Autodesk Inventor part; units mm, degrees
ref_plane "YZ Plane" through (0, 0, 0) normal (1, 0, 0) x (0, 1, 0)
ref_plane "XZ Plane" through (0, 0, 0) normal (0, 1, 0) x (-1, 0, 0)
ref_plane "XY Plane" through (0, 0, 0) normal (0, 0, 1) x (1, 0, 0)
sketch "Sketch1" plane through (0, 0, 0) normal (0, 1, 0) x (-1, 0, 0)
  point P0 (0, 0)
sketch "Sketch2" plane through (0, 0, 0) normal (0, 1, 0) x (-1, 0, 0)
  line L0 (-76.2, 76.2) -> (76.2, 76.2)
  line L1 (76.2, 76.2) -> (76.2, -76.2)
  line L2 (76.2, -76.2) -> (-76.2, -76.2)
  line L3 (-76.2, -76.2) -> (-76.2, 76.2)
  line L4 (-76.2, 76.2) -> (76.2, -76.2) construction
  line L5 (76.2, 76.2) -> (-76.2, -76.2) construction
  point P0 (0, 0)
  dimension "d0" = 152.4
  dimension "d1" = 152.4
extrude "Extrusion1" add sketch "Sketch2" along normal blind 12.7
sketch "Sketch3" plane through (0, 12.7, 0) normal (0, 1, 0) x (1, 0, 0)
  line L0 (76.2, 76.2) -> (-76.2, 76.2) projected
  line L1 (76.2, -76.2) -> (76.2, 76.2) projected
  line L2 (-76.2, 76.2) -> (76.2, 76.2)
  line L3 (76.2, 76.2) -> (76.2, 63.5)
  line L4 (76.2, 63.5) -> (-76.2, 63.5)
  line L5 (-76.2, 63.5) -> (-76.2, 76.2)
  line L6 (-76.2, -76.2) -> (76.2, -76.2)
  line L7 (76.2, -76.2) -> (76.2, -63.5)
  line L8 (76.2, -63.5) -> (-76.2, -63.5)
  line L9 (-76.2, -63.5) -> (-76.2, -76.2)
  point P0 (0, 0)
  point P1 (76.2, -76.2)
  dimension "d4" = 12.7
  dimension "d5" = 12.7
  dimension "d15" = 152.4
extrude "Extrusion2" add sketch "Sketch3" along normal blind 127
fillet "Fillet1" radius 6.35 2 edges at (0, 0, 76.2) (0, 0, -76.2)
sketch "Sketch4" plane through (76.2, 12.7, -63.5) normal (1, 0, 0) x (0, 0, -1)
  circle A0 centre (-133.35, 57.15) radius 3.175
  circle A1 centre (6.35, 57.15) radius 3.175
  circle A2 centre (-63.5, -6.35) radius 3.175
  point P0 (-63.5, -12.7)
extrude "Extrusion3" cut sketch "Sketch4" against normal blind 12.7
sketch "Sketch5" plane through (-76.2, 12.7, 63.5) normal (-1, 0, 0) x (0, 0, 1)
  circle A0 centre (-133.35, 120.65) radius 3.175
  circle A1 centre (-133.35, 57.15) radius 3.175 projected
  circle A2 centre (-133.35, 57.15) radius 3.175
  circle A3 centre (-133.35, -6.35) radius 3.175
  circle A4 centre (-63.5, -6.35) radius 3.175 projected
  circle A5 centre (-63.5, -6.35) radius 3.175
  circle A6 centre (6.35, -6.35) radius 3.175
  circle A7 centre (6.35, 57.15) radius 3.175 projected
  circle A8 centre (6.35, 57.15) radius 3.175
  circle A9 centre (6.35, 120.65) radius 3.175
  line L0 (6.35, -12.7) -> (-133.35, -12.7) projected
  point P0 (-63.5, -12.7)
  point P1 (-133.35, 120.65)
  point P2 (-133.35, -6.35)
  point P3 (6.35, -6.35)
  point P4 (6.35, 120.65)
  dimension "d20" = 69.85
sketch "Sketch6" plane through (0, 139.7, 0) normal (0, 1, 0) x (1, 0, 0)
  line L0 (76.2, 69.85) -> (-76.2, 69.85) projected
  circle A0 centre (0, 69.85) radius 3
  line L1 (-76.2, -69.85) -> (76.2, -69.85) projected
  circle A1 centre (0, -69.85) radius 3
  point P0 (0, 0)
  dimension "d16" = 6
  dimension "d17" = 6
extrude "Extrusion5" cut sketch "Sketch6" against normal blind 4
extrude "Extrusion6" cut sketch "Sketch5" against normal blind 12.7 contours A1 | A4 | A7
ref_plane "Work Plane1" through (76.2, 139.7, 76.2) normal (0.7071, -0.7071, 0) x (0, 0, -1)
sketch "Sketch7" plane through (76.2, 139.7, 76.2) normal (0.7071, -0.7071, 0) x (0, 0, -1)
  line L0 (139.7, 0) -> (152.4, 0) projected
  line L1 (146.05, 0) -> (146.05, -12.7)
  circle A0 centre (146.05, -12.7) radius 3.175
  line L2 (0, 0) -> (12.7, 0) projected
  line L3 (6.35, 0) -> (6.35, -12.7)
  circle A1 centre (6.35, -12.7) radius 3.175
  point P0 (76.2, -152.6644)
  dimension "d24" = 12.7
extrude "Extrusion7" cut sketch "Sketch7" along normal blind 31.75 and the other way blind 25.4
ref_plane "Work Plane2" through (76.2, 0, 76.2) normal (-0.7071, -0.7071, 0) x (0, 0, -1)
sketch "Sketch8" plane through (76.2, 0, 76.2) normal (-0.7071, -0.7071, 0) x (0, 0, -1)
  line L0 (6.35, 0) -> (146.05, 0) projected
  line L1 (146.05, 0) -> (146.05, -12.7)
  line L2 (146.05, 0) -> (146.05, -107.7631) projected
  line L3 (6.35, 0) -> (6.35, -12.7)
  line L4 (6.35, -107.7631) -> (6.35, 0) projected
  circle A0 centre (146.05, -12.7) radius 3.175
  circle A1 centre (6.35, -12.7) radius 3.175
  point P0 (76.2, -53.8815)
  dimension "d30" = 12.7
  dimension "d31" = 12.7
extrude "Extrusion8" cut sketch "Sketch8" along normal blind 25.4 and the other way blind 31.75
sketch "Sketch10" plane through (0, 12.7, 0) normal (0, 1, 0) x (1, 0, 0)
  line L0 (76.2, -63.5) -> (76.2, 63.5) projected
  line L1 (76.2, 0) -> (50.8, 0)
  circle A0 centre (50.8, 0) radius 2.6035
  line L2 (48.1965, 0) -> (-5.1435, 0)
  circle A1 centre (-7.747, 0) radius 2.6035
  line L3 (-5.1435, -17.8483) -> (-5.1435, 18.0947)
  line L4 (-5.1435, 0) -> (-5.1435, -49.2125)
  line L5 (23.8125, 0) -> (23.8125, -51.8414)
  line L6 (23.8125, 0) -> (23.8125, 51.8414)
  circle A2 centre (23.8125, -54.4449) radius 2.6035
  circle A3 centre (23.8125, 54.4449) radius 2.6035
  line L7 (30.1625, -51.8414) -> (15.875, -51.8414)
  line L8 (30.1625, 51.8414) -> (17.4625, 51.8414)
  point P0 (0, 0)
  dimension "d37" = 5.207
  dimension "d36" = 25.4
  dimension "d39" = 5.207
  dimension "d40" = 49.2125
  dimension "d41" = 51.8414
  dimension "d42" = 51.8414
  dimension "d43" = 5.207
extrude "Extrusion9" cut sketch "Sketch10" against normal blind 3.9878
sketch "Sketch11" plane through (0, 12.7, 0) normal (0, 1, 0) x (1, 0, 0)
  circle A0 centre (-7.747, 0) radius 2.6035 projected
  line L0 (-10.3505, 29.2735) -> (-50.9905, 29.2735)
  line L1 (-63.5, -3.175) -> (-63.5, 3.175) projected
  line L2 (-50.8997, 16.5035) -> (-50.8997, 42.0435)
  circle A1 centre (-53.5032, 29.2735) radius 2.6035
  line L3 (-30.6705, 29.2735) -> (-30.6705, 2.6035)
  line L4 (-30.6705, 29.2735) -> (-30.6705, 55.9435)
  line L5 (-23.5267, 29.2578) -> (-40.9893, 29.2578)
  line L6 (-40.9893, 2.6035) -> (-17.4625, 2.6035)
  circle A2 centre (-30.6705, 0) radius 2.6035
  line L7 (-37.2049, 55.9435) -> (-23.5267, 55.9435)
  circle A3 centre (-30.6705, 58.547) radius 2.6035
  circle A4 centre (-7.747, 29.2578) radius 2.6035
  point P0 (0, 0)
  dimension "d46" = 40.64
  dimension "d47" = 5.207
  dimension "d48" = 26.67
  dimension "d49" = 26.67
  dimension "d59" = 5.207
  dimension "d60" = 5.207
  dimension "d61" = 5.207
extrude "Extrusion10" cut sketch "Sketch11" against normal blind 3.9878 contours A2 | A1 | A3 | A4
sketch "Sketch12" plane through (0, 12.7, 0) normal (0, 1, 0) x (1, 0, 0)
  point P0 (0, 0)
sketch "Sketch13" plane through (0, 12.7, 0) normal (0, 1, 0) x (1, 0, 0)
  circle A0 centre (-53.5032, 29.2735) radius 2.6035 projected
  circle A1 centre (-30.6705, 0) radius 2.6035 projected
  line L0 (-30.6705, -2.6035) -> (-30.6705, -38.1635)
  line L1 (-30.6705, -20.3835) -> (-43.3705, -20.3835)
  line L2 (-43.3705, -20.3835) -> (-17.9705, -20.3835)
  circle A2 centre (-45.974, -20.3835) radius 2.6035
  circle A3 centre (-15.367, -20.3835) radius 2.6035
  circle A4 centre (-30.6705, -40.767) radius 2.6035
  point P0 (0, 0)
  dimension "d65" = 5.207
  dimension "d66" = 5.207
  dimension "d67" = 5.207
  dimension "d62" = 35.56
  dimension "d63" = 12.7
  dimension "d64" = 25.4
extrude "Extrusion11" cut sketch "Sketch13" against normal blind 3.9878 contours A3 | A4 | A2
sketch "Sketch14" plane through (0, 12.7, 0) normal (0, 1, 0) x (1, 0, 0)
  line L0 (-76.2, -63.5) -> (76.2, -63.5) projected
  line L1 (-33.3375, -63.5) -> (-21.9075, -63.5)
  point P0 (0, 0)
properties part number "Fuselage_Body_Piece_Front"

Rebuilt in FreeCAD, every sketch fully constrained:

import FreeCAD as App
import Part
import Sketcher
from FreeCAD import Vector
Q = App.Units.Quantity


def edges_at(feature, points):
    """Names of the edges that pass closest to the given points."""
    edges = feature.Shape.Edges
    near = lambda p: min(range(len(edges)), key=lambda i: edges[i].distToShape(Part.Vertex(*p))[0])
    return sorted({f"Edge{near(p) + 1}" for p in points})


def add_polygon(sketch, points):
    """Adds a closed chain of lines whose ends are joined by coincident constraints."""
    first, n = sketch.GeometryCount, len(points)
    for a, b in zip(points, points[1:] + points[:1]):
        sketch.addGeometry(Part.LineSegment(App.Vector(*a, 0), App.Vector(*b, 0)), False)
    for i in range(n):
        sketch.addConstraint(Sketcher.Constraint("Coincident", first + i, 2, first + (i + 1) % n, 1))

doc = App.newDocument("Part")
params = doc.addObject("Spreadsheet::Sheet", "Params")
for row, (alias, value) in enumerate([
    ("sketch1_width", "6 in"),
    ("pad1_length", "0.5 in"),
    ("sketch2_width", "6 in"),
    ("sketch2_height", "0.5 in"),
    ("pad2_length", "5 in"),
    ("fillet_radius", "0.25 in"),
    ("sketch3_diameter", "0.25 in"),
    ("pocket1_length", "0.5 in"),
    ("pocket2_length", "4 mm"),
    ("sketch5_diameter", "0.25 in"),
    ("pocket3_length", "0.5 in"),
    ("sketch6_diameter", "0.25 in"),
    ("sketch7_diameter", "0.25 in"),
    ("sketch8_diameter", "0.205 in"),
    ("pocket6_length", "0.157 in"),
    ("sketch9_diameter", "0.205 in"),
    ("pocket7_length", "0.157 in"),
    ("sketch10_diameter", "0.205 in"),
    ("pocket8_length", "0.157 in"),
], start=1):
    params.set(f"A{row}", alias)
    params.set(f"B{row}", "=" + value)
    params.setAlias(f"B{row}", alias)

body = doc.addObject("PartDesign::Body", "Body")

# Sketch on XZ plane
sketch1 = body.newObject("Sketcher::SketchObject", "Sketch")
sketch1.AttachmentSupport = (doc.getObject("XZ_Plane"), [""])
sketch1.MapMode = "FlatFace"
add_polygon(sketch1, [(-76.2, 76.2), (76.2, 76.2), (76.2, -76.2), (-76.2, -76.2)])  # lines 0-3
sketch1.addConstraint([
    Sketcher.Constraint("Horizontal", 0),
    Sketcher.Constraint("Vertical", 1),
    Sketcher.Constraint("Horizontal", 2),
    Sketcher.Constraint("Vertical", 3),
    Sketcher.Constraint("Symmetric", 0, 2, 2, 2, -1, 1),
    Sketcher.Constraint("Equal", 2, 1),
    Sketcher.Constraint("DistanceX", 0, 1, 0, 2, Q("6 in")),
])
sketch1.setExpression("Constraints[10]", "Params.sketch1_width")
pad1 = body.newObject("PartDesign::Pad", "Pad")
pad1.Profile = sketch1
pad1.setExpression("Length", "Params.pad1_length")
pad1.Reversed = True

# Sketch on XZ plane
sketch2 = body.newObject("Sketcher::SketchObject", "Sketch001")
sketch2.AttachmentSupport = (doc.getObject("XZ_Plane"), [""])
sketch2.MapMode = "FlatFace"
sketch2.AttachmentOffset = App.Placement(Vector(0, 0, -0.5 * 25.4), App.Rotation())
add_polygon(sketch2, [(76.2, -63.5), (76.2, -76.2), (-76.2, -76.2), (-76.2, -63.5)])  # lines 0-3
add_polygon(sketch2, [(76.2, 76.2), (76.2, 63.5), (-76.2, 63.5), (-76.2, 76.2)])  # lines 4-7
sketch2.addConstraint([
    Sketcher.Constraint("Vertical", 0),
    Sketcher.Constraint("Horizontal", 1),
    Sketcher.Constraint("Vertical", 2),
    Sketcher.Constraint("Horizontal", 3),
    Sketcher.Constraint("Vertical", 4),
    Sketcher.Constraint("Horizontal", 5),
    Sketcher.Constraint("Vertical", 6),
    Sketcher.Constraint("Horizontal", 7),
    Sketcher.Constraint("Symmetric", 2, 2, 4, 2, -1, 1),
    Sketcher.Constraint("Symmetric", 0, 2, 6, 2, -1, 1),
    Sketcher.Constraint("Vertical", 3, 2, 4, 2),
    Sketcher.Constraint("DistanceX", 1, 2, 1, 1, Q("6 in")),
    Sketcher.Constraint("DistanceY", 0, 2, 0, 1, Q("0.5 in")),
    Sketcher.Constraint("DistanceY", 1, 2, 6, 2, Q("6 in")),
])
sketch2.setExpression("Constraints[19]", "Params.sketch2_width")
sketch2.setExpression("Constraints[20]", "Params.sketch2_height")
pad2 = body.newObject("PartDesign::Pad", "Pad001")
pad2.Profile = sketch2
pad2.setExpression("Length", "Params.pad2_length")
pad2.Reversed = True
doc.recompute()

fillet = body.newObject("PartDesign::Fillet", "Fillet")
fillet.Base = (pad2, edges_at(pad2, [(0, 0, 76.2), (0, 0, -76.2)]))
fillet.setExpression("Radius", "Params.fillet_radius")

# Sketch on YZ plane
sketch3 = body.newObject("Sketcher::SketchObject", "Sketch002")
sketch3.AttachmentSupport = (doc.getObject("YZ_Plane"), [""])
sketch3.MapMode = "FlatFace"
sketch3.AttachmentOffset = App.Placement(Vector(0, 0, 3 * 25.4), App.Rotation())
sketch3.addGeometry([
    Part.Circle(Vector(69.85, 69.85, 0), Vector(0, 0, 1), 3.175),
    Part.Circle(Vector(69.85, -69.85, 0), Vector(0, 0, 1), 3.175),
    Part.Circle(Vector(6.35, 0, 0), Vector(0, 0, 1), 3.175),
], False)
sketch3.addConstraint([
    Sketcher.Constraint("Equal", 0, 1),
    Sketcher.Constraint("Equal", 1, 2),
    Sketcher.Constraint("Symmetric", 0, 3, 1, 3, -1),
    Sketcher.Constraint("PointOnObject", 2, 3, -1),
    Sketcher.Constraint("Diameter", 0, Q("0.25 in")),
    Sketcher.Constraint("DistanceY", 1, 3, 0, 3, Q("5.5 in")),
    Sketcher.Constraint("DistanceX", 2, 3, 0, 3, Q("2.5 in")),
    Sketcher.Constraint("DistanceX", -1, 1, 0, 3, Q("2.75 in")),
])
sketch3.setExpression("Constraints[4]", "Params.sketch3_diameter")
pocket1 = body.newObject("PartDesign::Pocket", "Pocket")
pocket1.Profile = sketch3
pocket1.setExpression("Length", "Params.pocket1_length")

# Sketch on XZ plane
sketch4 = body.newObject("Sketcher::SketchObject", "Sketch003")
sketch4.AttachmentSupport = (doc.getObject("XZ_Plane"), [""])
sketch4.MapMode = "FlatFace"
sketch4.AttachmentOffset = App.Placement(Vector(0, 0, -5.5 * 25.4), App.Rotation())
sketch4.addGeometry([
    Part.Circle(Vector(0, -69.85, 0), Vector(0, 0, 1), 3),
    Part.Circle(Vector(0, 69.85, 0), Vector(0, 0, 1), 3),
], False)
sketch4.addConstraint([
    Sketcher.Constraint("Equal", 0, 1),
    Sketcher.Constraint("Symmetric", 0, 3, 1, 3, -1, 1),
    Sketcher.Constraint("PointOnObject", 0, 3, -2),
    Sketcher.Constraint("Diameter", 0, Q("6 mm")),
    Sketcher.Constraint("DistanceY", 0, 3, 1, 3, Q("5.5 in")),
])
pocket2 = body.newObject("PartDesign::Pocket", "Pocket001")
pocket2.Profile = sketch4
pocket2.setExpression("Length", "Params.pocket2_length")
pocket2.Reversed = True

# Sketch on YZ plane
sketch5 = body.newObject("Sketcher::SketchObject", "Sketch004")
sketch5.AttachmentSupport = (doc.getObject("YZ_Plane"), [""])
sketch5.MapMode = "FlatFace"
sketch5.AttachmentOffset = App.Placement(Vector(0, 0, -3 * 25.4), App.Rotation())
sketch5.addGeometry([
    Part.Circle(Vector(69.85, -69.85, 0), Vector(0, 0, 1), 3.175),
    Part.Circle(Vector(6.35, 0, 0), Vector(0, 0, 1), 3.175),
    Part.Circle(Vector(69.85, 69.85, 0), Vector(0, 0, 1), 3.175),
], False)
sketch5.addConstraint([
    Sketcher.Constraint("Equal", 0, 1),
    Sketcher.Constraint("Equal", 1, 2),
    Sketcher.Constraint("Symmetric", 0, 3, 2, 3, -1),
    Sketcher.Constraint("PointOnObject", 1, 3, -1),
    Sketcher.Constraint("Diameter", 0, Q("0.25 in")),
    Sketcher.Constraint("DistanceX", -1, 1, 0, 3, Q("2.75 in")),
    Sketcher.Constraint("DistanceY", 0, 3, -1, 1, Q("2.75 in")),
    Sketcher.Constraint("DistanceX", 1, 3, 0, 3, Q("2.5 in")),
])
sketch5.setExpression("Constraints[4]", "Params.sketch5_diameter")
pocket3 = body.newObject("PartDesign::Pocket", "Pocket002")
pocket3.Profile = sketch5
pocket3.setExpression("Length", "Params.pocket3_length")
pocket3.Reversed = True

# Sketch on an angled plane
sketch6 = body.newObject("Sketcher::SketchObject", "Sketch005")
sketch6.Placement = App.Placement(Vector(76.2, 139.7, 76.2), App.Rotation(Vector(0, 0, -1), Vector(0.707106781, 0.707106781, 0), Vector(0.707106781, -0.707106781, 0), "ZXY"))
sketch6.addGeometry([
    Part.Circle(Vector(146.05, -12.7, 0), Vector(0, 0, 1), 3.175),
    Part.Circle(Vector(6.35, -12.7, 0), Vector(0, 0, 1), 3.175),
], False)
sketch6.addConstraint([
    Sketcher.Constraint("Equal", 0, 1),
    Sketcher.Constraint("Horizontal", 0, 3, 1, 3),
    Sketcher.Constraint("DistanceY", 0, 3, -1, 1, Q("0.5 in")),
    Sketcher.Constraint("Diameter", 0, Q("0.25 in")),
    Sketcher.Constraint("DistanceX", 1, 3, 0, 3, Q("5.5 in")),
    Sketcher.Constraint("DistanceX", -1, 1, 0, 3, Q("5.75 in")),
])
sketch6.setExpression("Constraints[3]", "Params.sketch6_diameter")
pocket4 = body.newObject("PartDesign::Pocket", "Pocket003")
pocket4.Profile = sketch6
pocket4.Type = "ThroughAll"
pocket4.Midplane = True

# Sketch on an angled plane
sketch7 = body.newObject("Sketcher::SketchObject", "Sketch006")
sketch7.Placement = App.Placement(Vector(76.2, 0, 76.2), App.Rotation(Vector(0, 0, -1), Vector(0.707106781, -0.707106781, 0), Vector(-0.707106781, -0.707106781, 0), "ZXY"))
sketch7.addGeometry([
    Part.Circle(Vector(146.05, -12.7, 0), Vector(0, 0, 1), 3.175),
    Part.Circle(Vector(6.35, -12.7, 0), Vector(0, 0, 1), 3.175),
], False)
sketch7.addConstraint([
    Sketcher.Constraint("Equal", 0, 1),
    Sketcher.Constraint("Horizontal", 0, 3, 1, 3),
    Sketcher.Constraint("DistanceY", 0, 3, -1, 1, Q("0.5 in")),
    Sketcher.Constraint("Diameter", 0, Q("0.25 in")),
    Sketcher.Constraint("DistanceX", 1, 3, 0, 3, Q("5.5 in")),
    Sketcher.Constraint("DistanceX", -1, 1, 0, 3, Q("5.75 in")),
])
sketch7.setExpression("Constraints[3]", "Params.sketch7_diameter")
pocket5 = body.newObject("PartDesign::Pocket", "Pocket004")
pocket5.Profile = sketch7
pocket5.Type = "ThroughAll"
pocket5.Midplane = True

# Sketch on XZ plane
sketch8 = body.newObject("Sketcher::SketchObject", "Sketch007")
sketch8.AttachmentSupport = (doc.getObject("XZ_Plane"), [""])
sketch8.MapMode = "FlatFace"
sketch8.AttachmentOffset = App.Placement(Vector(0, 0, -0.5 * 25.4), App.Rotation())
sketch8.addGeometry([
    Part.Circle(Vector(50.8, 0, 0), Vector(0, 0, 1), 2.6035),
    Part.Circle(Vector(23.8125, 54.4449, 0), Vector(0, 0, 1), 2.6035),
    Part.Circle(Vector(-7.747, 0, 0), Vector(0, 0, 1), 2.6035),
    Part.Circle(Vector(23.8125, -54.4449, 0), Vector(0, 0, 1), 2.6035),
], False)
sketch8.addConstraint([
    Sketcher.Constraint("Equal", 0, 1),
    Sketcher.Constraint("Equal", 1, 2),
    Sketcher.Constraint("Equal", 2, 3),
    Sketcher.Constraint("Symmetric", 1, 3, 3, 3, -1),
    Sketcher.Constraint("PointOnObject", 0, 3, -1),
    Sketcher.Constraint("PointOnObject", 2, 3, -1),
    Sketcher.Constraint("Diameter", 0, Q("0.205 in")),
    Sketcher.Constraint("DistanceX", -1, 1, 0, 3, Q("2 in")),
    Sketcher.Constraint("DistanceX", -1, 1, 1, 3, Q("0.9375 in")),
    Sketcher.Constraint("DistanceX", 2, 3, -1, 1, Q("0.305 in")),
    Sketcher.Constraint("DistanceY", 3, 3, 1, 3, Q("4.287 in")),
])
sketch8.setExpression("Constraints[6]", "Params.sketch8_diameter")
pocket6 = body.newObject("PartDesign::Pocket", "Pocket005")
pocket6.Profile = sketch8
pocket6.setExpression("Length", "Params.pocket6_length")
pocket6.Reversed = True

# Sketch on XZ plane
sketch9 = body.newObject("Sketcher::SketchObject", "Sketch008")
sketch9.AttachmentSupport = (doc.getObject("XZ_Plane"), [""])
sketch9.MapMode = "FlatFace"
sketch9.AttachmentOffset = App.Placement(Vector(0, 0, -0.5 * 25.4), App.Rotation())
sketch9.addGeometry([
    Part.Circle(Vector(-30.6705, 0, 0), Vector(0, 0, 1), 2.6035),
    Part.Circle(Vector(-53.5032, -29.2735, 0), Vector(0, 0, 1), 2.6035),
    Part.Circle(Vector(-30.6705, -58.547, 0), Vector(0, 0, 1), 2.6035),
    Part.Circle(Vector(-7.747, -29.2578, 0), Vector(0, 0, 1), 2.6035),
], False)
sketch9.addConstraint([
    Sketcher.Constraint("Equal", 0, 1),
    Sketcher.Constraint("Equal", 1, 2),
    Sketcher.Constraint("Equal", 2, 3),
    Sketcher.Constraint("PointOnObject", 0, 3, -1),
    Sketcher.Constraint("Vertical", 0, 3, 2, 3),
    Sketcher.Constraint("Diameter", 0, Q("0.205 in")),
    Sketcher.Constraint("DistanceY", 2, 3, -1, 1, Q("2.305 in")),
    Sketcher.Constraint("DistanceX", 3, 3, -1, 1, Q("0.305 in")),
    Sketcher.Constraint("DistanceX", 0, 3, -1, 1, Q("1.2075 in")),
    Sketcher.Constraint("DistanceY", 1, 3, -1, 1, Q("1.1525 in")),
    Sketcher.Constraint("DistanceX", 1, 3, -1, 1, Q("53.5032 mm")),
    Sketcher.Constraint("DistanceY", 3, 3, -1, 1, Q("29.2578 mm")),
])
sketch9.setExpression("Constraints[5]", "Params.sketch9_diameter")
pocket7 = body.newObject("PartDesign::Pocket", "Pocket006")
pocket7.Profile = sketch9
pocket7.setExpression("Length", "Params.pocket7_length")
pocket7.Reversed = True

# Sketch on XZ plane
sketch10 = body.newObject("Sketcher::SketchObject", "Sketch009")
sketch10.AttachmentSupport = (doc.getObject("XZ_Plane"), [""])
sketch10.MapMode = "FlatFace"
sketch10.AttachmentOffset = App.Placement(Vector(0, 0, -0.5 * 25.4), App.Rotation())
sketch10.addGeometry([
    Part.Circle(Vector(-15.367, 20.3835, 0), Vector(0, 0, 1), 2.6035),
    Part.Circle(Vector(-30.6705, 40.767, 0), Vector(0, 0, 1), 2.6035),
    Part.Circle(Vector(-45.974, 20.3835, 0), Vector(0, 0, 1), 2.6035),
], False)
sketch10.addConstraint([
    Sketcher.Constraint("Equal", 0, 1),
    Sketcher.Constraint("Equal", 1, 2),
    Sketcher.Constraint("Horizontal", 0, 3, 2, 3),
    Sketcher.Constraint("Diameter", 0, Q("0.205 in")),
    Sketcher.Constraint("DistanceX", 2, 3, -1, 1, Q("1.81 in")),
    Sketcher.Constraint("DistanceX", 0, 3, -1, 1, Q("0.605 in")),
    Sketcher.Constraint("DistanceY", -1, 1, 1, 3, Q("1.605 in")),
    Sketcher.Constraint("DistanceY", -1, 1, 0, 3, Q("0.8025 in")),
    Sketcher.Constraint("DistanceX", 1, 3, -1, 1, Q("1.2075 in")),
])
sketch10.setExpression("Constraints[3]", "Params.sketch10_diameter")
pocket8 = body.newObject("PartDesign::Pocket", "Pocket007")
pocket8.Profile = sketch10
pocket8.setExpression("Length", "Params.pocket8_length")
pocket8.Reversed = True

doc.recompute()
